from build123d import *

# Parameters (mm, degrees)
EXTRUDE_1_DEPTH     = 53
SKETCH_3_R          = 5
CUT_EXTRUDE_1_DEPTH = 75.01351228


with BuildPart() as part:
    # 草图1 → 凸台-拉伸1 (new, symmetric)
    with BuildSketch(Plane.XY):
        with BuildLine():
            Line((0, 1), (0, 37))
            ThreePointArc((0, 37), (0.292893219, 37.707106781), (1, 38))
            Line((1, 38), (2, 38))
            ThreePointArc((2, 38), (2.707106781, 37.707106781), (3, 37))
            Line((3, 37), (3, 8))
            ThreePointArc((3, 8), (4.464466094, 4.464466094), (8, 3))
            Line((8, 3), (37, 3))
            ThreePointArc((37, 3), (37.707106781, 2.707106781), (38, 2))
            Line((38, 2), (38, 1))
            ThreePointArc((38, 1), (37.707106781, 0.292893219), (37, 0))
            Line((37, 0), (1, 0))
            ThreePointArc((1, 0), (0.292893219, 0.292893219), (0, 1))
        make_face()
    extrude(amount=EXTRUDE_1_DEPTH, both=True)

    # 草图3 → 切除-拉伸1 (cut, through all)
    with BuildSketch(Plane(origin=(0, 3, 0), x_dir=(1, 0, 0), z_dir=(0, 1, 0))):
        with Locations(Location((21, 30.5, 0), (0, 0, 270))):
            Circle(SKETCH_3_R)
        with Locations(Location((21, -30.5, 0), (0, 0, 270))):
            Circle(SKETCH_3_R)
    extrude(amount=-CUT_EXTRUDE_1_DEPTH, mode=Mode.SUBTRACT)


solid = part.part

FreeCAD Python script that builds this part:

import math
import FreeCAD as App
import Part
import Sketcher
from FreeCAD import Vector
Q = App.Units.Quantity

doc = App.newDocument("Part")
body = doc.addObject("PartDesign::Body", "Body")

# Sketch on XY plane
sketch1 = doc.addObject("Sketcher::SketchObject", "Sketch")
body.addObject(sketch1)
sketch1.AttachmentSupport = (doc.XY_Plane, [""])
sketch1.MapMode = "FlatFace"
sketch1.addGeometry([
    Part.LineSegment(Vector(0, 37, 0), Vector(0, 1, 0)),  # 0
    Part.ArcOfCircle(Part.Circle(Vector(1, 1, 0), Vector(0, 0, 1), 1), math.radians(-180), math.radians(-90)),  # 1
    Part.LineSegment(Vector(1, 0, 0), Vector(37, 0, 0)),  # 2
    Part.ArcOfCircle(Part.Circle(Vector(37, 1, 0), Vector(0, 0, 1), 1), math.radians(-90), math.radians(0)),  # 3
    Part.LineSegment(Vector(38, 1, 0), Vector(38, 2, 0)),  # 4
    Part.ArcOfCircle(Part.Circle(Vector(37, 2, 0), Vector(0, 0, 1), 1), math.radians(0), math.radians(90)),  # 5
    Part.LineSegment(Vector(37, 3, 0), Vector(8, 3, 0)),  # 6
    Part.ArcOfCircle(Part.Circle(Vector(8, 8, 0), Vector(0, 0, 1), 5), math.radians(180), math.radians(270)),  # 7
    Part.LineSegment(Vector(3, 8, 0), Vector(3, 37, 0)),  # 8
    Part.ArcOfCircle(Part.Circle(Vector(2, 37, 0), Vector(0, 0, 1), 1), math.radians(0), math.radians(90)),  # 9
    Part.LineSegment(Vector(2, 38, 0), Vector(1, 38, 0)),  # 10
    Part.ArcOfCircle(Part.Circle(Vector(1, 37, 0), Vector(0, 0, 1), 1), math.radians(90), math.radians(180)),  # 11
], False)
sketch1.addConstraint([
    Sketcher.Constraint("Tangent", 0, 2, 1, 1),
    Sketcher.Constraint("Tangent", 1, 2, 2, 1),
    Sketcher.Constraint("Tangent", 2, 2, 3, 1),
    Sketcher.Constraint("Tangent", 3, 2, 4, 1),
    Sketcher.Constraint("Tangent", 4, 2, 5, 1),
    Sketcher.Constraint("Tangent", 5, 2, 6, 1),
    Sketcher.Constraint("Tangent", 6, 2, 7, 2),
    Sketcher.Constraint("Tangent", 7, 1, 8, 1),
    Sketcher.Constraint("Tangent", 8, 2, 9, 1),
    Sketcher.Constraint("Tangent", 9, 2, 10, 1),
    Sketcher.Constraint("Tangent", 10, 2, 11, 1),
    Sketcher.Constraint("Tangent", 11, 2, 0, 1),
    Sketcher.Constraint("Vertical", 0),
    Sketcher.Constraint("Horizontal", 2),
    Sketcher.Constraint("Vertical", 4),
    Sketcher.Constraint("Horizontal", 6),
    Sketcher.Constraint("Vertical", 8),
    Sketcher.Constraint("Horizontal", 10),
    Sketcher.Constraint("Equal", 1, 3),
    Sketcher.Constraint("Equal", 3, 5),
    Sketcher.Constraint("Equal", 5, 9),
    Sketcher.Constraint("Equal", 9, 11),
    Sketcher.Constraint("PointOnObject", 0, 2, -2),
    Sketcher.Constraint("PointOnObject", 1, 2, -1),
    Sketcher.Constraint("Equal", 2, 0),
    Sketcher.Constraint("Equal", 10, 4),
    Sketcher.Constraint("Radius", 1, Q("1 mm")),
    Sketcher.Constraint("Radius", 7, Q("5 mm")),
    Sketcher.Constraint("DistanceX", 2, 1, 2, 2, Q("36 mm")),
    Sketcher.Constraint("DistanceX", 6, 2, 6, 1, Q("29 mm")),
])
pad1 = doc.addObject("PartDesign::Pad", "Pad")
body.addObject(pad1)
pad1.Profile = sketch1
pad1.Length = 106
pad1.Midplane = True

# Sketch on XZ plane
sketch2 = doc.addObject("Sketcher::SketchObject", "Sketch001")
body.addObject(sketch2)
sketch2.AttachmentSupport = (doc.XZ_Plane, [""])
sketch2.MapMode = "FlatFace"
sketch2.AttachmentOffset = App.Placement(Vector(0, 0, -3), App.Rotation())
sketch2.addGeometry([
    Part.Circle(Vector(21, -30, 0), Vector(0, 0, 1), 5),
    Part.Circle(Vector(21, 30, 0), Vector(0, 0, 1), 5),
], False)
sketch2.addConstraint([
    Sketcher.Constraint("Equal", 0, 1),
    Sketcher.Constraint("Symmetric", 0, 3, 1, 3, -1),
    Sketcher.Constraint("Diameter", 0, Q("10 mm")),
    Sketcher.Constraint("DistanceX", -1, 1, 0, 3, Q("21 mm")),
    Sketcher.Constraint("DistanceY", 0, 3, 1, 3, Q("61 mm")),
])
pocket1 = doc.addObject("PartDesign::Pocket", "Pocket")
body.addObject(pocket1)
pocket1.Profile = sketch2
pocket1.Type = "ThroughAll"
pocket1.Reversed = True

doc.recompute()
